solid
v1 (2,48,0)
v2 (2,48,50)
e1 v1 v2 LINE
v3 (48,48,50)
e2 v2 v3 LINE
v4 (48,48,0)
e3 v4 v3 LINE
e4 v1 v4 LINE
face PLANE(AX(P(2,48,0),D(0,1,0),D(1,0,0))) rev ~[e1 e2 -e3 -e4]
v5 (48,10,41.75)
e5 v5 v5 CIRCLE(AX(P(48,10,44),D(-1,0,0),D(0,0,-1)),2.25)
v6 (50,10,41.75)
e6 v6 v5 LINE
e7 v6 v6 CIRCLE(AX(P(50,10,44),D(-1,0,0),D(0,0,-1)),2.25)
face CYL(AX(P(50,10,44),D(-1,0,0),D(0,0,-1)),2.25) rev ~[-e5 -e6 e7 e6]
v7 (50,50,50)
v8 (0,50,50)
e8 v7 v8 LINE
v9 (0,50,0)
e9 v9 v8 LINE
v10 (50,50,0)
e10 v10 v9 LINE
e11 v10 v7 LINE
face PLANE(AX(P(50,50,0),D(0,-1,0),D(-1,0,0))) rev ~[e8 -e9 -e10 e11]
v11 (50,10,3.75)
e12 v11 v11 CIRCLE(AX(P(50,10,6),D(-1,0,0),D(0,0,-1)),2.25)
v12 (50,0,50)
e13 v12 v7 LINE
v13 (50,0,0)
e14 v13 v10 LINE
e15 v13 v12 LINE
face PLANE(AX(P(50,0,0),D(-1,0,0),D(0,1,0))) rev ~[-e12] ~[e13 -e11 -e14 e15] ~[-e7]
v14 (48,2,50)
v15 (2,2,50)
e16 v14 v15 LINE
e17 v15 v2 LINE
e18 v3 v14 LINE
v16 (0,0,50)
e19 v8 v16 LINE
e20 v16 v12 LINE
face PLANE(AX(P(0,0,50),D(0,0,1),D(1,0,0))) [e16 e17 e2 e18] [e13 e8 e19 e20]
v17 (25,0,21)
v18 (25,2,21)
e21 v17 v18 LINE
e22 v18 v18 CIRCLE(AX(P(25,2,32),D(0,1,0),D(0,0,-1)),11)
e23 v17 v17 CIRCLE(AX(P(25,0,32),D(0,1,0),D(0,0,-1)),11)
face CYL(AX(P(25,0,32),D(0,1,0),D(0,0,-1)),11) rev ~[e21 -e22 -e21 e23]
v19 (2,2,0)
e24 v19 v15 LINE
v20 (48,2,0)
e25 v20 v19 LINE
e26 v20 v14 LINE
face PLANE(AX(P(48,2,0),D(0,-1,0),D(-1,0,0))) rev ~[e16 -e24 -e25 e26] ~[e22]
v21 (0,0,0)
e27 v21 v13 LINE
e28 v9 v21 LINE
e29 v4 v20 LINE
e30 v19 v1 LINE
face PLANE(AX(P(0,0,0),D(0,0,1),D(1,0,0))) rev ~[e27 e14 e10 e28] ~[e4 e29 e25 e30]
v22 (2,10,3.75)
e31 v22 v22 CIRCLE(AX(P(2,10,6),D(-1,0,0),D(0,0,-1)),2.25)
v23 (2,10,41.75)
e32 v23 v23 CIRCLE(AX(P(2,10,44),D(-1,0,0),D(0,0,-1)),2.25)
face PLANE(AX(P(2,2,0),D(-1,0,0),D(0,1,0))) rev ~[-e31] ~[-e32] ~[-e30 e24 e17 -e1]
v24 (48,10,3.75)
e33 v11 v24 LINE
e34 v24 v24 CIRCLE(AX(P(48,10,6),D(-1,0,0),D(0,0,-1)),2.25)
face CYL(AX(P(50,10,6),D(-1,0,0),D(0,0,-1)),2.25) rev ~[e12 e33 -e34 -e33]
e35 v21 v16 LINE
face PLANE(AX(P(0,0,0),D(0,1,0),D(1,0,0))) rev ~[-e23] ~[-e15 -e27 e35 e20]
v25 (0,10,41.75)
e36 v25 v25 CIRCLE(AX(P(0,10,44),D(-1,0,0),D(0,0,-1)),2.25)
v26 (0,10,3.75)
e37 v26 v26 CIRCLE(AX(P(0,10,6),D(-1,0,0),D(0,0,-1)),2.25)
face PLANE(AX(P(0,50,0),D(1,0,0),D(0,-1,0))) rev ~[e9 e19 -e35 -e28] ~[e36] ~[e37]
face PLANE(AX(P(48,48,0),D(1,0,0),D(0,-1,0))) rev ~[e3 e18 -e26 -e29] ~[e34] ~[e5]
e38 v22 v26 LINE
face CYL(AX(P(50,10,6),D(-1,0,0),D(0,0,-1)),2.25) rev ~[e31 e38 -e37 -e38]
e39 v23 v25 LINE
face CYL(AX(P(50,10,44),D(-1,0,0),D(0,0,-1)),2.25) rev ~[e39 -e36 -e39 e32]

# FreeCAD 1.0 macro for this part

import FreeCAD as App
import Part
import Sketcher

V = App.Vector
Q = App.Units.Quantity

doc = App.newDocument("Part")
params = doc.addObject("Spreadsheet::Sheet", "Params")
for row, (alias, value) in enumerate([
    ("sketch1_width", "50 mm"),
    ("pad1_length", "50 mm"),
    ("sketch2_diameter", "4.5 mm"),
    ("hole_diameter", "4.5 mm"),
    ("sketch3_diameter", "22 mm"),
    ("hole2_diameter", "22 mm"),
    ("hole2_depth", "2 mm"),
], start=1):
    params.set(f"A{row}", alias)
    params.set(f"B{row}", "=" + value)
    params.setAlias(f"B{row}", alias)

body = doc.addObject("PartDesign::Body", "Body")

# Sketch on XY plane
sketch1 = body.newObject("Sketcher::SketchObject", "Sketch")
sketch1.AttachmentSupport = (doc.getObject("XY_Plane"), [""])
sketch1.MapMode = "FlatFace"
sketch1.addGeometry([
    Part.LineSegment(V(0, 50, 0), V(0, 0, 0)),  # 0
    Part.LineSegment(V(0, 0, 0), V(50, 0, 0)),  # 1
    Part.LineSegment(V(50, 0, 0), V(50, 50, 0)),  # 2
    Part.LineSegment(V(50, 50, 0), V(0, 50, 0)),  # 3
    Part.LineSegment(V(2, 2, 0), V(2, 48, 0)),  # 4
    Part.LineSegment(V(2, 48, 0), V(48, 48, 0)),  # 5
    Part.LineSegment(V(48, 48, 0), V(48, 2, 0)),  # 6
    Part.LineSegment(V(48, 2, 0), V(2, 2, 0)),  # 7
], False)
sketch1.addConstraint([
    Sketcher.Constraint("Coincident", 0, 2, 1, 1),
    Sketcher.Constraint("Coincident", 1, 2, 2, 1),
    Sketcher.Constraint("Coincident", 2, 2, 3, 1),
    Sketcher.Constraint("Coincident", 3, 2, 0, 1),
    Sketcher.Constraint("Coincident", 4, 2, 5, 1),
    Sketcher.Constraint("Coincident", 5, 2, 6, 1),
    Sketcher.Constraint("Coincident", 6, 2, 7, 1),
    Sketcher.Constraint("Coincident", 7, 2, 4, 1),
    Sketcher.Constraint("Vertical", 0),
    Sketcher.Constraint("Horizontal", 1),
    Sketcher.Constraint("Vertical", 2),
    Sketcher.Constraint("Horizontal", 3),
    Sketcher.Constraint("Vertical", 4),
    Sketcher.Constraint("Horizontal", 5),
    Sketcher.Constraint("Vertical", 6),
    Sketcher.Constraint("Horizontal", 7),
    Sketcher.Constraint("Coincident", 0, 2, -1, 1),
    Sketcher.Constraint("Equal", 3, 0),
    Sketcher.Constraint("Equal", 7, 4),
    Sketcher.Constraint("DistanceX", 1, 1, 1, 2, Q("50 mm")),
    Sketcher.Constraint("DistanceX", -1, 1, 4, 2, Q("2 mm")),
    Sketcher.Constraint("DistanceY", -1, 1, 6, 2, Q("2 mm")),
    Sketcher.Constraint("DistanceY", 4, 2, 3, 2, Q("2 mm")),
])
sketch1.setExpression("Constraints[19]", "Params.sketch1_width")
pad1 = body.newObject("PartDesign::Pad", "Pad")
pad1.Profile = sketch1
pad1.setExpression("Length", "Params.pad1_length")

# Sketch on YZ plane
sketch2 = body.newObject("Sketcher::SketchObject", "Sketch001")
sketch2.AttachmentSupport = (doc.getObject("YZ_Plane"), [""])
sketch2.MapMode = "FlatFace"
sketch2.AttachmentOffset = App.Placement(V(0, 0, 50), App.Rotation())
sketch2.addGeometry([
    Part.Circle(V(10, 44, 0), V(0, 0, 1), 2.2),
    Part.Circle(V(10, 6, 0), V(0, 0, 1), 2.2),
], False)
sketch2.addConstraint([
    Sketcher.Constraint("Equal", 0, 1),
    Sketcher.Constraint("Vertical", 0, 3, 1, 3),
    Sketcher.Constraint("Diameter", 0, Q("4.5 mm")),
    Sketcher.Constraint("DistanceX", -1, 1, 0, 3, Q("10 mm")),
    Sketcher.Constraint("DistanceY", -1, 1, 0, 3, Q("44 mm")),
    Sketcher.Constraint("DistanceY", -1, 1, 1, 3, Q("6 mm")),
])
sketch2.setExpression("Constraints[2]", "Params.sketch2_diameter")
doc.recompute()
hole = body.newObject("PartDesign::Hole", "Hole")
hole.Profile = sketch2
hole.ThreadType = "None"
hole.setExpression("Diameter", "Params.hole_diameter")
hole.DepthType = "ThroughAll"

# Sketch on XZ plane
sketch3 = body.newObject("Sketcher::SketchObject", "Sketch002")
sketch3.AttachmentSupport = (doc.getObject("XZ_Plane"), [""])
sketch3.MapMode = "FlatFace"
sketch3.addGeometry(Part.Circle(V(25, 32, 0), V(0, 0, 1), 11), False)
sketch3.addConstraint([
    Sketcher.Constraint("Diameter", 0, Q("22 mm")),
    Sketcher.Constraint("DistanceX", -1, 1, 0, 3, Q("25 mm")),
    Sketcher.Constraint("DistanceY", -1, 1, 0, 3, Q("32 mm")),
])
sketch3.setExpression("Constraints[0]", "Params.sketch3_diameter")
doc.recompute()
hole2 = body.newObject("PartDesign::Hole", "Hole001")
hole2.Profile = sketch3
hole2.ThreadType = "None"
hole2.setExpression("Diameter", "Params.hole2_diameter")
hole2.DepthType = "Dimension"
hole2.setExpression("Depth", "Params.hole2_depth")
hole2.DrillPoint = "Flat"

doc.recompute()
